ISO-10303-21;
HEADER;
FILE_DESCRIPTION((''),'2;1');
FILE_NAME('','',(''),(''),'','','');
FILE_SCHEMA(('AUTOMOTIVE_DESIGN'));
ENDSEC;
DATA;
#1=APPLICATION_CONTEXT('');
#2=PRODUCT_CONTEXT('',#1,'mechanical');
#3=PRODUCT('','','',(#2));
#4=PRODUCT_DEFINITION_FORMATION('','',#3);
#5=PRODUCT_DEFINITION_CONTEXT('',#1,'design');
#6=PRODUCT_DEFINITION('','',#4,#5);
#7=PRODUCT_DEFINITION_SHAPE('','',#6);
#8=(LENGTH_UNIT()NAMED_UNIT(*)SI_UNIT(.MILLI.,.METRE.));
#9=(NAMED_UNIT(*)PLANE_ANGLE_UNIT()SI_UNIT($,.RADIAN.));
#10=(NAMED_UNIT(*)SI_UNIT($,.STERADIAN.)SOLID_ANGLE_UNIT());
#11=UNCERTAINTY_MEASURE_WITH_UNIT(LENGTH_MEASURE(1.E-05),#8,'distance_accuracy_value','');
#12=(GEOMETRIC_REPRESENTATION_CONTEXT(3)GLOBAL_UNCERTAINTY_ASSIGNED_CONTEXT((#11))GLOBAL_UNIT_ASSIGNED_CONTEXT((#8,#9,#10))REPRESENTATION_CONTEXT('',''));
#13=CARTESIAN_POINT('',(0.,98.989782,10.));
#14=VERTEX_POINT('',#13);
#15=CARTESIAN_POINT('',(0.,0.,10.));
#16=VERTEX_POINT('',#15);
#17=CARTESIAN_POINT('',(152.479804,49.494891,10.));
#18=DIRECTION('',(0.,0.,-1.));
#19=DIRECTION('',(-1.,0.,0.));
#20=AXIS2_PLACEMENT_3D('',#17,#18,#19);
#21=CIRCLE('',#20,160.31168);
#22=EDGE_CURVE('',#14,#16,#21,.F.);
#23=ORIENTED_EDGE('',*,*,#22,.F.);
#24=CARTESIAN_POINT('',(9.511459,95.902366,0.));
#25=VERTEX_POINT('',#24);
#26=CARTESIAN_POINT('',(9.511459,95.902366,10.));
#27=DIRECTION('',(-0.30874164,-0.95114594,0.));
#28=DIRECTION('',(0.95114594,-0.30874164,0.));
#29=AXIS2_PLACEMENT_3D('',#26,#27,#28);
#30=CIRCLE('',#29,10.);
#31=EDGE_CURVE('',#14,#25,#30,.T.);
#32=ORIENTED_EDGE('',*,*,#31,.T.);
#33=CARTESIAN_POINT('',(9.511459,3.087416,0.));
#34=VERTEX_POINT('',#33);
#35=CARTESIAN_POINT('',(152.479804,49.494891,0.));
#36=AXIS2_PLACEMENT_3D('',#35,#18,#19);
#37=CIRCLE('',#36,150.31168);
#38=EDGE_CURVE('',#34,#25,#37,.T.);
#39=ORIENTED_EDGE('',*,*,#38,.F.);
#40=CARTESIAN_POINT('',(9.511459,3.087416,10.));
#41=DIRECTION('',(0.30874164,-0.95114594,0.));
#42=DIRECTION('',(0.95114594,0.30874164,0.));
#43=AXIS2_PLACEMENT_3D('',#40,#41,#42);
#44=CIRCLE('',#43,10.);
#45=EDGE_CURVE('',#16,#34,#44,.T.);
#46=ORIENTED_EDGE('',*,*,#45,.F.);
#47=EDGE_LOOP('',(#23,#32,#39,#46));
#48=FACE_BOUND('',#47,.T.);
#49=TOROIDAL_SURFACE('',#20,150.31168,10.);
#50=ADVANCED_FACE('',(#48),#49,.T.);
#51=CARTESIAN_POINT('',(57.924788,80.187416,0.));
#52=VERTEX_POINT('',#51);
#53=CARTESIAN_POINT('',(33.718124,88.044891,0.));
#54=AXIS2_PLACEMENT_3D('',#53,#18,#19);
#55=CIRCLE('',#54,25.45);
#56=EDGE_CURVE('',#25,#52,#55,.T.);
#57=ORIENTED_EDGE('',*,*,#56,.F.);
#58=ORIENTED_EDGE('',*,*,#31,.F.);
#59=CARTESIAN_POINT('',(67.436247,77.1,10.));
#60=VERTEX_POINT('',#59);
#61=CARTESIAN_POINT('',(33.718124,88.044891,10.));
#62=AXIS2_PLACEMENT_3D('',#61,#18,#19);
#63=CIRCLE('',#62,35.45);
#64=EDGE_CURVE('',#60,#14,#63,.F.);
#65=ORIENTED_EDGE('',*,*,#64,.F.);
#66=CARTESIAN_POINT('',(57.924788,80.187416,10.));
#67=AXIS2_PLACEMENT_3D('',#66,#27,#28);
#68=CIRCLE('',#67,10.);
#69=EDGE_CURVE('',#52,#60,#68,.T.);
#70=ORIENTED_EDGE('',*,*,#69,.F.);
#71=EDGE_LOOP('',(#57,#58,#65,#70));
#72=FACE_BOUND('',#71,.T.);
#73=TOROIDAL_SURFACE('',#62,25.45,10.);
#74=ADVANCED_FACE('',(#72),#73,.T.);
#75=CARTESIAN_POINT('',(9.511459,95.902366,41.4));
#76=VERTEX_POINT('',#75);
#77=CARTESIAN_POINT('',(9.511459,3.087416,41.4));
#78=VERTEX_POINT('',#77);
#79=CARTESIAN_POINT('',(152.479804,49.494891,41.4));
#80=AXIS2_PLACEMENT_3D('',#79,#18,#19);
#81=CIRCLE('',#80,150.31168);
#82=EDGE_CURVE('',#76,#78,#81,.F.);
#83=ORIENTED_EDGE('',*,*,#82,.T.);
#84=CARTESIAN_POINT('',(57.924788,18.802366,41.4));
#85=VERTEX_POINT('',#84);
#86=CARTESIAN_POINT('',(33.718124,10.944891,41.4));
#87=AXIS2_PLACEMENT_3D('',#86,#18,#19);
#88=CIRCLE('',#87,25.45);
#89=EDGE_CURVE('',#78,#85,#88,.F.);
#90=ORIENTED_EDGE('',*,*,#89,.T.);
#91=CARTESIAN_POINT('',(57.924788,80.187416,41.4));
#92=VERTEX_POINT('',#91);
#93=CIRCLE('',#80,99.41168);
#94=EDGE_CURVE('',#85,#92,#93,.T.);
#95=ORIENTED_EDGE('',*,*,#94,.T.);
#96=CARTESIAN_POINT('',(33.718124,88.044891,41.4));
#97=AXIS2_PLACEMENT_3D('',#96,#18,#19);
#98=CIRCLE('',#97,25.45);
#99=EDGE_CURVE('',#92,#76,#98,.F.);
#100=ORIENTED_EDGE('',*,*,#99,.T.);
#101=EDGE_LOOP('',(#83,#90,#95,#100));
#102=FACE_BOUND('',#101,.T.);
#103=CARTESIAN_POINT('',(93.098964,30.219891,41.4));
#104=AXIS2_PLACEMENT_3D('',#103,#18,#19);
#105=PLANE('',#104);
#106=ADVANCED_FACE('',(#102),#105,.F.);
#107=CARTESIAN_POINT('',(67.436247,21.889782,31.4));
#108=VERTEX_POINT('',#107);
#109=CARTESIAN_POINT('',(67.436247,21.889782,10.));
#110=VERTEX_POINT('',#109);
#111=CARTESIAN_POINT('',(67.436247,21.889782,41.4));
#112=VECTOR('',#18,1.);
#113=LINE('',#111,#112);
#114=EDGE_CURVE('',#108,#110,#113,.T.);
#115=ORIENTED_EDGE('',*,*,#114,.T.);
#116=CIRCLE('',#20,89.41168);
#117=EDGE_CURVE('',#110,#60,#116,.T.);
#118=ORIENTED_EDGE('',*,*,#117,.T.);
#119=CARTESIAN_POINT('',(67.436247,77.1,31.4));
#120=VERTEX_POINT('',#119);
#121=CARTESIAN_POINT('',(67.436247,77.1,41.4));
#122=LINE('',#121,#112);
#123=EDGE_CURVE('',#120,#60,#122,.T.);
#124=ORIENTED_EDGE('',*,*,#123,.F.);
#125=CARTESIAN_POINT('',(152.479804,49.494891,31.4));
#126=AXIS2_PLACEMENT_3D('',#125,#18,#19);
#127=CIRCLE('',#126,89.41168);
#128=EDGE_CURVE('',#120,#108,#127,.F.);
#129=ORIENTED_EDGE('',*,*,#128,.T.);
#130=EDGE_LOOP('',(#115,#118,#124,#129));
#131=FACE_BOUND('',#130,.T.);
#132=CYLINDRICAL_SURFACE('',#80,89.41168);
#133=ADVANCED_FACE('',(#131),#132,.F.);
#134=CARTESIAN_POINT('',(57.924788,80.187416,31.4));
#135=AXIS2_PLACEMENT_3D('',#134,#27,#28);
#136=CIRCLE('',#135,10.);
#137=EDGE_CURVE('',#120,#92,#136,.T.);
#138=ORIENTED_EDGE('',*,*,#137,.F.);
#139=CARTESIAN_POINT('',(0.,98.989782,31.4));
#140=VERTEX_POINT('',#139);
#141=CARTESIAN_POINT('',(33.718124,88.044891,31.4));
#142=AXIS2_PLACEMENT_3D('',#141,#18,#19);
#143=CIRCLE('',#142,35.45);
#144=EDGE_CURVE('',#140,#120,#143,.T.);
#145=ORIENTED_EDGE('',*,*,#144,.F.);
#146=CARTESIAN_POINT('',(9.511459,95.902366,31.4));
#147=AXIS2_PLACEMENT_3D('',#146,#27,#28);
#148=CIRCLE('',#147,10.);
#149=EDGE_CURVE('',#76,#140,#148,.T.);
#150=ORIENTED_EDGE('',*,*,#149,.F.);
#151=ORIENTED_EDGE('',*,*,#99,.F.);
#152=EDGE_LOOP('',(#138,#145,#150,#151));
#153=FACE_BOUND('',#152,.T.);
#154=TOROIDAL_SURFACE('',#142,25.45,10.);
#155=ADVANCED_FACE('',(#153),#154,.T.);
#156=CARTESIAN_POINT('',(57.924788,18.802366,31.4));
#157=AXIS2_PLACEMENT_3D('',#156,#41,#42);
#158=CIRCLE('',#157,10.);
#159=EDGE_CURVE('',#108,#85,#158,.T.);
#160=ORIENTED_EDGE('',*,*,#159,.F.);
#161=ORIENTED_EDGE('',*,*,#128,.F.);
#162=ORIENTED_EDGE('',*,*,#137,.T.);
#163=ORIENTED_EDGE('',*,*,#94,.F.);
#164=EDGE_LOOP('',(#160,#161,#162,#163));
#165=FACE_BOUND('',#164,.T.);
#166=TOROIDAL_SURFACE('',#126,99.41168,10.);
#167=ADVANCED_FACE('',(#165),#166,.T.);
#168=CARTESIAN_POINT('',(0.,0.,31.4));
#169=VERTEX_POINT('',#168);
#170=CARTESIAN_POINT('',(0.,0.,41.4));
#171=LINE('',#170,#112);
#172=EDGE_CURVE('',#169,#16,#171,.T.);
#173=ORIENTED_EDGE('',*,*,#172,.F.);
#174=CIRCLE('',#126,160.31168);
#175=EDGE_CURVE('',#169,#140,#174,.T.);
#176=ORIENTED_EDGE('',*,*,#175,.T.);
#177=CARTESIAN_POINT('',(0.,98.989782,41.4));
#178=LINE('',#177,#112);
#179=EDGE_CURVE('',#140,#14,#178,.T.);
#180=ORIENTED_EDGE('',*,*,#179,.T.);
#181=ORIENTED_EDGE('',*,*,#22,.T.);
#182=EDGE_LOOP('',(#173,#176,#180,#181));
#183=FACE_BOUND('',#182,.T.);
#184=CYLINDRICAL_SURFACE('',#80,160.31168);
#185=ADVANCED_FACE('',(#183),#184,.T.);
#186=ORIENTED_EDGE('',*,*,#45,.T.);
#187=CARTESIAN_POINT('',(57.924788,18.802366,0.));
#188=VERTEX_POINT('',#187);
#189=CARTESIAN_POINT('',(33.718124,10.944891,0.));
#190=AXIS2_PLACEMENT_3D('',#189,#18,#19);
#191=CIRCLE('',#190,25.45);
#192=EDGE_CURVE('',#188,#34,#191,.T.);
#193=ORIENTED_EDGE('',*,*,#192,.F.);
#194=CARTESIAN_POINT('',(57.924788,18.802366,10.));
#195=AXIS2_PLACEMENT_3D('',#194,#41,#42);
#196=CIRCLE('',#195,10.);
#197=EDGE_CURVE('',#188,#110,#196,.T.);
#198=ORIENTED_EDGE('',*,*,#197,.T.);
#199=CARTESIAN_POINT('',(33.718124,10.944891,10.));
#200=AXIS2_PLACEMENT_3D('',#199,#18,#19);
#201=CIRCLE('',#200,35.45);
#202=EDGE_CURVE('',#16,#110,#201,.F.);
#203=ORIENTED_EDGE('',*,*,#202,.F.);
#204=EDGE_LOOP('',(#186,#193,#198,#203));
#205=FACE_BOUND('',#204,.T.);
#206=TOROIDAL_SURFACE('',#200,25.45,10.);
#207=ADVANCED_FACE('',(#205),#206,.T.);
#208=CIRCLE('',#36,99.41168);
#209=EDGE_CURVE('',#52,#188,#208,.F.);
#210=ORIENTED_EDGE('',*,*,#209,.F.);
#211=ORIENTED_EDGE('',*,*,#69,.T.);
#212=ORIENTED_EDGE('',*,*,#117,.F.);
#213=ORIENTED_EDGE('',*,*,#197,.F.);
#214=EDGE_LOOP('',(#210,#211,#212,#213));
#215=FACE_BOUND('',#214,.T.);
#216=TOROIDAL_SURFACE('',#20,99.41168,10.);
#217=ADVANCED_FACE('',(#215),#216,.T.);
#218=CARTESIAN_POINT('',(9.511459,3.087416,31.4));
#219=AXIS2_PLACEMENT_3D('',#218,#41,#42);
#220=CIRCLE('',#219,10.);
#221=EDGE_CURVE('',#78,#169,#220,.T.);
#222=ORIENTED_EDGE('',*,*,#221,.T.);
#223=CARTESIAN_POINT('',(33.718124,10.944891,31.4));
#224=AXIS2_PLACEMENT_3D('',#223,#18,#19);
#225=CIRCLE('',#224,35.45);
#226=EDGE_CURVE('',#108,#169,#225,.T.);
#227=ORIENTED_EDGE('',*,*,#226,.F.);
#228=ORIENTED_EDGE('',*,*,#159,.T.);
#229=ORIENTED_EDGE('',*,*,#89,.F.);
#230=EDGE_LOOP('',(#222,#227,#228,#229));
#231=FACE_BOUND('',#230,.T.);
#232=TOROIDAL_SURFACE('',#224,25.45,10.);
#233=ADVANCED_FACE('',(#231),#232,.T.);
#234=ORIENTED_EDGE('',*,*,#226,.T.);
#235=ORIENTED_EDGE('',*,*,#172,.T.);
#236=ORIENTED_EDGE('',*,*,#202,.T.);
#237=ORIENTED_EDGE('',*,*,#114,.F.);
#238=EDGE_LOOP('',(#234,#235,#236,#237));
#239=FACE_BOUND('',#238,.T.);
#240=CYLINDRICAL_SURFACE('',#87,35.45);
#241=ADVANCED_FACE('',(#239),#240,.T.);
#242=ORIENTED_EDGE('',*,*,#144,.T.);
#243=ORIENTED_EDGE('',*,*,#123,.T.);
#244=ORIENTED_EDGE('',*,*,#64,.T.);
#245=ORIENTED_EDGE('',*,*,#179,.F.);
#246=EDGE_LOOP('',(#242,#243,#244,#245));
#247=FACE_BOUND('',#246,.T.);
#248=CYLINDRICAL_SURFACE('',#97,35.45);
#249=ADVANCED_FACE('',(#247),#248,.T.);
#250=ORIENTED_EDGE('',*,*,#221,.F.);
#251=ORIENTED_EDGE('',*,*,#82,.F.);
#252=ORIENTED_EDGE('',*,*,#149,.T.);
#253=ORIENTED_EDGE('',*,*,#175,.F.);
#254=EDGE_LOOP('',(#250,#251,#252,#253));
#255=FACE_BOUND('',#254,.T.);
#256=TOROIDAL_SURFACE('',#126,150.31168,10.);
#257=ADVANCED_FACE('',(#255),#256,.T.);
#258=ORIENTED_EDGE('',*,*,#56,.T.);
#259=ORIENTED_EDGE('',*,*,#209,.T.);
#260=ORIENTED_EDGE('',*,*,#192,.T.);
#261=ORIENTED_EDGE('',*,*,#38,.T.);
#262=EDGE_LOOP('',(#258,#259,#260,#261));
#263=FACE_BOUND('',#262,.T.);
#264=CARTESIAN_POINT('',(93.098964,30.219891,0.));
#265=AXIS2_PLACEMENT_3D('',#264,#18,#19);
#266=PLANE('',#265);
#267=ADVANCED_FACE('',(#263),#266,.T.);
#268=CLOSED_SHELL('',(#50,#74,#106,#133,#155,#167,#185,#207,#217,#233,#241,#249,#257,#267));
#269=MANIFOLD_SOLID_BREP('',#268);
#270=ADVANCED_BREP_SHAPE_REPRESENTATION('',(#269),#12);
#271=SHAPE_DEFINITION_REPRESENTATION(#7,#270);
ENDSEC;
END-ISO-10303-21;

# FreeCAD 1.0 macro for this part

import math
import FreeCAD as App
import Part
import Sketcher


def edges_at(feature, points):
    """Names of the edges that pass closest to the given points."""
    edges = feature.Shape.Edges
    near = lambda p: min(range(len(edges)), key=lambda i: edges[i].distToShape(Part.Vertex(*p))[0])
    return sorted({f"Edge{near(p) + 1}" for p in points})

doc = App.newDocument("Part")
body = doc.addObject("PartDesign::Body", "Body")

sketch1 = doc.addObject("Sketcher::SketchObject", "Sketch")
body.addObject(sketch1)
sketch1.AttachmentSupport = (doc.XY_Plane, [""])
sketch1.MapMode = "FlatFace"
sketch1.addGeometry([
    Part.ArcOfCircle(Part.Circle(App.Vector(152, 49, 0), App.Vector(0, 0, 1), 160), math.radians(162), math.radians(198)),
    Part.ArcOfCircle(Part.Circle(App.Vector(34, 11, 0), App.Vector(0, 0, 1), 35), math.radians(-162), math.radians(18)),
    Part.ArcOfCircle(Part.Circle(App.Vector(152, 49, 0), App.Vector(0, 0, 1), 89), math.radians(162), math.radians(198)),
    Part.ArcOfCircle(Part.Circle(App.Vector(34, 88, 0), App.Vector(0, 0, 1), 35), math.radians(-18), math.radians(162)),
], False)
sketch1.addConstraint([
    Sketcher.Constraint("Tangent", 0, 2, 1, 1),
    Sketcher.Constraint("Tangent", 1, 2, 2, 2),
    Sketcher.Constraint("Tangent", 2, 1, 3, 1),
    Sketcher.Constraint("Tangent", 3, 2, 0, 1),
    Sketcher.Constraint("Coincident", 0, 2, -1, 1),
    Sketcher.Constraint("Coincident", 2, 3, 0, 3),
    Sketcher.Constraint("PointOnObject", 3, 2, -2),
    Sketcher.Constraint("Radius", 1, 35.45),
    Sketcher.Constraint("DistanceY", -1, 1, 2, 1, 77.1),
    Sketcher.Constraint("Radius", 0, 160.31168),
])
pad1 = doc.addObject("PartDesign::Pad", "Pad")
body.addObject(pad1)
pad1.Profile = sketch1
pad1.Length = 41.4
doc.recompute()

fillet = doc.addObject("PartDesign::Fillet", "Fillet")
body.addObject(fillet)
fillet.Base = (pad1, edges_at(pad1, [
    (44.663, 121.763, 41.4),
    (-7.832, 49.495, 41.4),
    (44.663, -22.773, 41.4),
    (-7.832, 49.495, 0),
    (44.663, 121.763, 0),
    (63.068, 49.495, 0),
    (44.663, -22.773, 0),
    (63.068, 49.495, 41.4),
]))
fillet.Radius = 10

doc.recompute()
